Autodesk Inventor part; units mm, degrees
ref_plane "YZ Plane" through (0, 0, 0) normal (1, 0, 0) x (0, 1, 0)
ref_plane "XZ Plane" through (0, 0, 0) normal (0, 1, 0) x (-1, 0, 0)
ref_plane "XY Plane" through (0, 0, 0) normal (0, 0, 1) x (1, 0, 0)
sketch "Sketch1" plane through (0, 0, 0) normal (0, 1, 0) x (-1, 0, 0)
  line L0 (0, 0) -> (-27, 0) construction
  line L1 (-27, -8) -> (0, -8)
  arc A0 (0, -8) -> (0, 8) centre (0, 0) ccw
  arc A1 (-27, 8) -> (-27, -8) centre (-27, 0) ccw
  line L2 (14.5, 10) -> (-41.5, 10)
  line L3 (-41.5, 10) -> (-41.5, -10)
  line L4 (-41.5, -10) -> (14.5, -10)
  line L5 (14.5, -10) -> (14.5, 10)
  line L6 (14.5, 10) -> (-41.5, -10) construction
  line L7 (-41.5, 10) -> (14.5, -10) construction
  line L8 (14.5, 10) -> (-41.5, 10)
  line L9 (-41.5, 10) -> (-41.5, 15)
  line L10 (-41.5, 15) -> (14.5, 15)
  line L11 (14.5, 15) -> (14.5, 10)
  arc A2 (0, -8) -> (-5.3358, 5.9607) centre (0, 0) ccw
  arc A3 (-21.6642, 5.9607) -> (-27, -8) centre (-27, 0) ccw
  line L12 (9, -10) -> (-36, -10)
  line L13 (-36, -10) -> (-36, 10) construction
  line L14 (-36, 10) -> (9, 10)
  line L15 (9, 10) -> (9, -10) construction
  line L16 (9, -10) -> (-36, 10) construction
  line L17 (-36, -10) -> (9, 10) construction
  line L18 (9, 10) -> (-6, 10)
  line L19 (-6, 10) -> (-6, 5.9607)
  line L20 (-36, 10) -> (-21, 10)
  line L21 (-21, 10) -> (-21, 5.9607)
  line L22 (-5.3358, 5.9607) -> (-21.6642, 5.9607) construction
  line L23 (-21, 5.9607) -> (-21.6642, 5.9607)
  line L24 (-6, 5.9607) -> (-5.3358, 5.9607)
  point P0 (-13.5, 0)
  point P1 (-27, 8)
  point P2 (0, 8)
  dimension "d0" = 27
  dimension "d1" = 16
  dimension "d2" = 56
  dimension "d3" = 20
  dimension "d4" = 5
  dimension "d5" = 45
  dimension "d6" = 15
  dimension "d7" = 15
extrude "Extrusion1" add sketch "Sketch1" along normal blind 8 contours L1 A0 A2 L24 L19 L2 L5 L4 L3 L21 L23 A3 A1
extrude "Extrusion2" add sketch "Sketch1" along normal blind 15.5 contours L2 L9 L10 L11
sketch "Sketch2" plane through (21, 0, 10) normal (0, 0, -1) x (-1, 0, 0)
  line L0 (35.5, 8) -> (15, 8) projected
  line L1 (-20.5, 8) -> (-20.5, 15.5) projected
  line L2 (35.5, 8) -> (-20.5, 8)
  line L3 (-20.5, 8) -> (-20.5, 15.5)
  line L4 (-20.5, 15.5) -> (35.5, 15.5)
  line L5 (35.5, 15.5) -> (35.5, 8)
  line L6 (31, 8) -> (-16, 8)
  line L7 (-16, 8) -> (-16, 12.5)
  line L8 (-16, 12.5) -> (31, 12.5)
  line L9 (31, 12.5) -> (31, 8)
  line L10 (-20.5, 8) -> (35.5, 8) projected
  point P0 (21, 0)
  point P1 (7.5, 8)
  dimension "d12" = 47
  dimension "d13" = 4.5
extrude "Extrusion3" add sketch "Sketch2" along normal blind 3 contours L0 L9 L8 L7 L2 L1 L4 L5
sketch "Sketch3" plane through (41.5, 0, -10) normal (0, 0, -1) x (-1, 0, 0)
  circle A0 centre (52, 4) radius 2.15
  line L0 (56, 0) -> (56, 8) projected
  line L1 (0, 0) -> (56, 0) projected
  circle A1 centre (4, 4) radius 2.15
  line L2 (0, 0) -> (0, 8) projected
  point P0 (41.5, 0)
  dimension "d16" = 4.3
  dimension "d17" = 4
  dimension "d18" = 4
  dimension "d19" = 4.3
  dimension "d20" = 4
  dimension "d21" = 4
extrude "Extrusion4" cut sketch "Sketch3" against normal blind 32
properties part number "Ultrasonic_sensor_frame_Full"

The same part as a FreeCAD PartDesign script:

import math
import FreeCAD as App
import Part
import Sketcher
from FreeCAD import Vector
Q = App.Units.Quantity


def add_polygon(sketch, points):
    """Adds a closed chain of lines whose ends are joined by coincident constraints."""
    first, n = sketch.GeometryCount, len(points)
    for a, b in zip(points, points[1:] + points[:1]):
        sketch.addGeometry(Part.LineSegment(App.Vector(*a, 0), App.Vector(*b, 0)), False)
    for i in range(n):
        sketch.addConstraint(Sketcher.Constraint("Coincident", first + i, 2, first + (i + 1) % n, 1))

doc = App.newDocument("Part")
params = doc.addObject("Spreadsheet::Sheet", "Params")
for row, (alias, value) in enumerate([
    ("sketch1_radius", "8 mm"),
    ("sketch1_width", "27 mm"),
    ("sketch1_width2", "56 mm"),
    ("sketch1_height", "20 mm"),
    ("pad1_length", "8 mm"),
    ("sketch2_width", "56 mm"),
    ("sketch2_height", "5 mm"),
    ("pad2_length", "15.5 mm"),
    ("sketch3_width", "47 mm"),
    ("sketch3_width2", "4.5 mm"),
    ("sketch3_height", "7.5 mm"),
    ("pad3_length", "3 mm"),
    ("sketch4_diameter", "4.3 mm"),
    ("pocket1_length", "32 mm"),
], start=1):
    params.set(f"A{row}", alias)
    params.set(f"B{row}", "=" + value)
    params.setAlias(f"B{row}", alias)

body = doc.addObject("PartDesign::Body", "Body")

# Sketch on XZ plane
sketch1 = body.newObject("Sketcher::SketchObject", "Sketch")
sketch1.AttachmentSupport = (doc.getObject("XZ_Plane"), [""])
sketch1.MapMode = "FlatFace"
sketch1.addGeometry([
    Part.LineSegment(Vector(0, -8, 0), Vector(27, -8, 0)),  # 0
    Part.ArcOfCircle(Part.Circle(Vector(27, 0, 0), Vector(0, 0, 1), 8), math.radians(-90), math.radians(90)),  # 1
    Part.ArcOfCircle(Part.Circle(Vector(27, 0, 0), Vector(0, 0, 1), 8.000044), math.radians(90), math.radians(131.833738)),  # 2
    Part.LineSegment(Vector(21.6642, 5.9607, 0), Vector(21, 5.9607, 0)),  # 3
    Part.LineSegment(Vector(21, 5.9607, 0), Vector(21, 10, 0)),  # 4
    Part.LineSegment(Vector(21, 10, 0), Vector(41.5, 10, 0)),  # 5
    Part.LineSegment(Vector(41.5, 10, 0), Vector(41.5, -10, 0)),  # 6
    Part.LineSegment(Vector(41.5, -10, 0), Vector(-14.5, -10, 0)),  # 7
    Part.LineSegment(Vector(-14.5, -10, 0), Vector(-14.5, 10, 0)),  # 8
    Part.LineSegment(Vector(-14.5, 10, 0), Vector(6, 10, 0)),  # 9
    Part.LineSegment(Vector(6, 10, 0), Vector(6, 5.9607, 0)),  # 10
    Part.LineSegment(Vector(6, 5.9607, 0), Vector(5.3358, 5.9607, 0)),  # 11
    Part.ArcOfCircle(Part.Circle(Vector(0, 0, 0), Vector(0, 0, 1), 8), math.radians(48.166262), math.radians(90)),  # 12
    Part.ArcOfCircle(Part.Circle(Vector(0, 0, 0), Vector(0, 0, 1), 8), math.radians(90), math.radians(270)),  # 13
], False)
sketch1.addConstraint([
    Sketcher.Constraint("Tangent", 0, 2, 1, 1),
    Sketcher.Constraint("Tangent", 1, 2, 2, 1),
    Sketcher.Constraint("Coincident", 2, 2, 3, 1),
    Sketcher.Constraint("Coincident", 3, 2, 4, 1),
    Sketcher.Constraint("Coincident", 4, 2, 5, 1),
    Sketcher.Constraint("Coincident", 5, 2, 6, 1),
    Sketcher.Constraint("Coincident", 6, 2, 7, 1),
    Sketcher.Constraint("Coincident", 7, 2, 8, 1),
    Sketcher.Constraint("Coincident", 8, 2, 9, 1),
    Sketcher.Constraint("Coincident", 9, 2, 10, 1),
    Sketcher.Constraint("Coincident", 10, 2, 11, 1),
    Sketcher.Constraint("Coincident", 11, 2, 12, 1),
    Sketcher.Constraint("Tangent", 12, 2, 13, 1),
    Sketcher.Constraint("Tangent", 13, 2, 0, 1),
    Sketcher.Constraint("Horizontal", 0),
    Sketcher.Constraint("Horizontal", 3),
    Sketcher.Constraint("Vertical", 4),
    Sketcher.Constraint("Horizontal", 5),
    Sketcher.Constraint("Vertical", 6),
    Sketcher.Constraint("Horizontal", 7),
    Sketcher.Constraint("Vertical", 8),
    Sketcher.Constraint("Horizontal", 9),
    Sketcher.Constraint("Vertical", 10),
    Sketcher.Constraint("Horizontal", 11),
    Sketcher.Constraint("Coincident", 12, 3, -1, 1),
    Sketcher.Constraint("Equal", 1, 2),
    Sketcher.Constraint("Equal", 2, 12),
    Sketcher.Constraint("Equal", 12, 13),
    Sketcher.Constraint("PointOnObject", 12, 2, -2),
    Sketcher.Constraint("Horizontal", 5, 2, 8, 2),
    Sketcher.Constraint("Horizontal", 3, 2, 10, 2),
    Sketcher.Constraint("Vertical", 0, 2, 1, 2),
    Sketcher.Constraint("Equal", 5, 9),
    Sketcher.Constraint("Equal", 3, 11),
    Sketcher.Constraint("Radius", 1, Q("8 mm")),
    Sketcher.Constraint("DistanceX", 0, 1, 0, 2, Q("27 mm")),
    Sketcher.Constraint("DistanceX", 7, 2, 7, 1, Q("56 mm")),
    Sketcher.Constraint("DistanceY", 6, 2, 6, 1, Q("20 mm")),
    Sketcher.Constraint("DistanceX", 9, 2, 4, 2, Q("15 mm")),
    Sketcher.Constraint("DistanceY", -1, 1, 4, 2, Q("10 mm")),
    Sketcher.Constraint("DistanceX", 3, 2, 3, 1, Q("0.6642 mm")),
])
sketch1.setExpression("Constraints[34]", "Params.sketch1_radius")
sketch1.setExpression("Constraints[35]", "Params.sketch1_width")
sketch1.setExpression("Constraints[36]", "Params.sketch1_width2")
sketch1.setExpression("Constraints[37]", "Params.sketch1_height")
pad1 = body.newObject("PartDesign::Pad", "Pad")
pad1.Profile = sketch1
pad1.setExpression("Length", "Params.pad1_length")
pad1.Reversed = True

# Sketch on XZ plane
sketch2 = body.newObject("Sketcher::SketchObject", "Sketch001")
sketch2.AttachmentSupport = (doc.getObject("XZ_Plane"), [""])
sketch2.MapMode = "FlatFace"
add_polygon(sketch2, [(41.5, 10), (-14.5, 10), (-14.5, 15), (41.5, 15)])  # lines 0-3
sketch2.addConstraint([
    Sketcher.Constraint("Horizontal", 0),
    Sketcher.Constraint("Vertical", 1),
    Sketcher.Constraint("Horizontal", 2),
    Sketcher.Constraint("Vertical", 3),
    Sketcher.Constraint("DistanceX", 0, 2, 0, 1, Q("56 mm")),
    Sketcher.Constraint("DistanceY", 1, 1, 1, 2, Q("5 mm")),
    Sketcher.Constraint("DistanceY", -1, 1, 1, 2, Q("15 mm")),
    Sketcher.Constraint("DistanceX", 0, 2, -1, 1, Q("14.5 mm")),
])
sketch2.setExpression("Constraints[8]", "Params.sketch2_width")
sketch2.setExpression("Constraints[9]", "Params.sketch2_height")
pad2 = body.newObject("PartDesign::Pad", "Pad001")
pad2.Profile = sketch2
pad2.setExpression("Length", "Params.pad2_length")
pad2.Reversed = True

# Sketch on XY plane
sketch3 = body.newObject("Sketcher::SketchObject", "Sketch002")
sketch3.AttachmentSupport = (doc.getObject("XY_Plane"), [""])
sketch3.MapMode = "FlatFace"
sketch3.AttachmentOffset = App.Placement(Vector(0, 0, 10), App.Rotation())
add_polygon(sketch3, [(-10, 8), (-14.5, 8), (-14.5, 15.5), (41.5, 15.5), (41.5, 8), (37, 8), (37, 12.5), (-10, 12.5)])  # lines 0-7
sketch3.addConstraint([
    Sketcher.Constraint("Horizontal", 0),
    Sketcher.Constraint("Vertical", 1),
    Sketcher.Constraint("Horizontal", 2),
    Sketcher.Constraint("Vertical", 3),
    Sketcher.Constraint("Horizontal", 4),
    Sketcher.Constraint("Vertical", 5),
    Sketcher.Constraint("Horizontal", 6),
    Sketcher.Constraint("Vertical", 7),
    Sketcher.Constraint("Horizontal", 0, 2, 3, 2),
    Sketcher.Constraint("Equal", 0, 4),
    Sketcher.Constraint("Equal", 4, 5),
    Sketcher.Constraint("DistanceX", 6, 2, 6, 1, Q("47 mm")),
    Sketcher.Constraint("DistanceX", 0, 2, 0, 1, Q("4.5 mm")),
    Sketcher.Constraint("DistanceY", 1, 1, 1, 2, Q("7.5 mm")),
    Sketcher.Constraint("DistanceY", -1, 1, 0, 2, Q("8 mm")),
    Sketcher.Constraint("DistanceX", -1, 1, 4, 2, Q("37 mm")),
])
sketch3.setExpression("Constraints[19]", "Params.sketch3_width")
sketch3.setExpression("Constraints[20]", "Params.sketch3_width2")
sketch3.setExpression("Constraints[21]", "Params.sketch3_height")
pad3 = body.newObject("PartDesign::Pad", "Pad002")
pad3.Profile = sketch3
pad3.setExpression("Length", "Params.pad3_length")
pad3.Reversed = True

# Sketch on XY plane
sketch4 = body.newObject("Sketcher::SketchObject", "Sketch003")
sketch4.AttachmentSupport = (doc.getObject("XY_Plane"), [""])
sketch4.MapMode = "FlatFace"
sketch4.AttachmentOffset = App.Placement(Vector(0, 0, -10), App.Rotation())
sketch4.addGeometry([
    Part.Circle(Vector(-10.5, 4, 0), Vector(0, 0, 1), 2.15),
    Part.Circle(Vector(37.5, 4, 0), Vector(0, 0, 1), 2.15),
], False)
sketch4.addConstraint([
    Sketcher.Constraint("Equal", 0, 1),
    Sketcher.Constraint("Horizontal", 0, 3, 1, 3),
    Sketcher.Constraint("Diameter", 0, Q("4.3 mm")),
    Sketcher.Constraint("DistanceY", -1, 1, 0, 3, Q("4 mm")),
    Sketcher.Constraint("DistanceX", 0, 3, 1, 3, Q("48 mm")),
    Sketcher.Constraint("DistanceX", 0, 3, -1, 1, Q("10.5 mm")),
])
sketch4.setExpression("Constraints[2]", "Params.sketch4_diameter")
pocket1 = body.newObject("PartDesign::Pocket", "Pocket")
pocket1.Profile = sketch4
pocket1.setExpression("Length", "Params.pocket1_length")
pocket1.Reversed = True

doc.recompute()
